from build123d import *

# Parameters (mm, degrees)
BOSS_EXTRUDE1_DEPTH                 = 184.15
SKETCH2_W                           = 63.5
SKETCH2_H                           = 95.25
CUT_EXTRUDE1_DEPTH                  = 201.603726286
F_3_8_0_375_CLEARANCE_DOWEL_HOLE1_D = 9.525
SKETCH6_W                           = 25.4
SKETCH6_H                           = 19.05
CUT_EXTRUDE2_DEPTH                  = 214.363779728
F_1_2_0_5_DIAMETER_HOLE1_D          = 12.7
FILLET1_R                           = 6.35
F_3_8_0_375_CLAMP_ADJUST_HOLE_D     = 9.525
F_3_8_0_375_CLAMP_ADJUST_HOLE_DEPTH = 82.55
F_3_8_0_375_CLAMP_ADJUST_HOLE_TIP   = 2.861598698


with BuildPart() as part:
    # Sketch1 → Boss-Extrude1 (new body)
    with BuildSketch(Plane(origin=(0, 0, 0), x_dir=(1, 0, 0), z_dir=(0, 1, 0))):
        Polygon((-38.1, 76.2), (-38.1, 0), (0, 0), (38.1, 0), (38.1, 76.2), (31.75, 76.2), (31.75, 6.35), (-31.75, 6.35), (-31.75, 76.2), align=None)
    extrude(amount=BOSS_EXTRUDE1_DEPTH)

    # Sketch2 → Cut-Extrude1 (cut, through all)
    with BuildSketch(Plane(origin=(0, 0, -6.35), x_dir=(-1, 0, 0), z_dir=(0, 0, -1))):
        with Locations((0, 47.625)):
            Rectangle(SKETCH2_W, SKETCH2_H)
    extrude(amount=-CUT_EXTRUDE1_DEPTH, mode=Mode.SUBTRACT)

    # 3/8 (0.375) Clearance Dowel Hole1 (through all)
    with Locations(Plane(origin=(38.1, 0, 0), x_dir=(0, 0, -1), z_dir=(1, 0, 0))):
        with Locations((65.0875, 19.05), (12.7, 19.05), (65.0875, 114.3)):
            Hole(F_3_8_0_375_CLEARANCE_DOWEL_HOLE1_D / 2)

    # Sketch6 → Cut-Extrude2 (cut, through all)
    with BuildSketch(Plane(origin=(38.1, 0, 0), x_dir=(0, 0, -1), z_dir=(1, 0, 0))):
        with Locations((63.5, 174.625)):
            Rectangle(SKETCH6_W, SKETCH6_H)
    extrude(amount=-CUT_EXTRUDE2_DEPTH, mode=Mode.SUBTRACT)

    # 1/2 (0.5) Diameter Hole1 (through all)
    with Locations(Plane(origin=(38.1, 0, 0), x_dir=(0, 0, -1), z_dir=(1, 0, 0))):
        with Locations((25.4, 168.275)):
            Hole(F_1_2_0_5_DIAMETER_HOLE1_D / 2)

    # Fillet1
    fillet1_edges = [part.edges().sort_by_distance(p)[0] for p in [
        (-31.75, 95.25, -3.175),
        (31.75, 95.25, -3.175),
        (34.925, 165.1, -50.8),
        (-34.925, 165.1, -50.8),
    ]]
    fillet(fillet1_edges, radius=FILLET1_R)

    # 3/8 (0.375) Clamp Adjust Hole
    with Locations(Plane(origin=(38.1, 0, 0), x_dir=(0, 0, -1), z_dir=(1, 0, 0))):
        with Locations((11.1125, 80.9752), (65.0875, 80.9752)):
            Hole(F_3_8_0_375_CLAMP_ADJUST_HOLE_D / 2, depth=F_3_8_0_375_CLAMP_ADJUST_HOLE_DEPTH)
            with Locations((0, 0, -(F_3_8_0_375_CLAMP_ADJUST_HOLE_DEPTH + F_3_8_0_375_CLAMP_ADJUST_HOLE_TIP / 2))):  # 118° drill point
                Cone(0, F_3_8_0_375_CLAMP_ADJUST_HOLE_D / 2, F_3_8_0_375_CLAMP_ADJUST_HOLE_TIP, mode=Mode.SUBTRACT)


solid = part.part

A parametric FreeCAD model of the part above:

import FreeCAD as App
import Part
import Sketcher

V = App.Vector
Q = App.Units.Quantity


def edges_at(feature, points):
    """Names of the edges that pass closest to the given points."""
    edges = feature.Shape.Edges
    near = lambda p: min(range(len(edges)), key=lambda i: edges[i].distToShape(Part.Vertex(*p))[0])
    return sorted({f"Edge{near(p) + 1}" for p in points})


def add_polygon(sketch, points):
    """Adds a closed chain of lines whose ends are joined by coincident constraints."""
    first, n = sketch.GeometryCount, len(points)
    for a, b in zip(points, points[1:] + points[:1]):
        sketch.addGeometry(Part.LineSegment(App.Vector(*a, 0), App.Vector(*b, 0)), False)
    for i in range(n):
        sketch.addConstraint(Sketcher.Constraint("Coincident", first + i, 2, first + (i + 1) % n, 1))

doc = App.newDocument("Part")
params = doc.addObject("Spreadsheet::Sheet", "Params")
for row, (alias, value) in enumerate([
    ("sketch1_width", "3 in"),
    ("sketch1_width2", "2.5 in"),
    ("sketch1_height", "2.75 in"),
    ("pad1_length", "7.25 in"),
    ("sketch2_width", "2.5 in"),
    ("sketch2_height", "3.75 in"),
    ("sketch3_diameter", "0.375 in"),
    ("hole_diameter", "0.375 in"),
    ("sketch4_height", "1 in"),
    ("sketch4_width", "0.75 in"),
    ("sketch5_diameter", "0.5 in"),
    ("hole2_diameter", "0.5 in"),
    ("fillet_radius", "0.25 in"),
    ("sketch6_diameter", "0.375 in"),
    ("hole3_diameter", "0.375 in"),
    ("hole3_depth", "3.25 in"),
], start=1):
    params.set(f"A{row}", alias)
    params.set(f"B{row}", "=" + value)
    params.setAlias(f"B{row}", alias)

body = doc.addObject("PartDesign::Body", "Body")

# Sketch on XZ plane
sketch1 = body.newObject("Sketcher::SketchObject", "Sketch")
sketch1.AttachmentSupport = (doc.getObject("XZ_Plane"), [""])
sketch1.MapMode = "FlatFace"
add_polygon(sketch1, [(-38, -76), (-38, 0), (38, 0), (38, -76), (32, -76), (32, -6), (-32, -6), (-32, -76)])  # lines 0-7
sketch1.addConstraint(Sketcher.Constraint("Vertical", 0))
sketch1.addConstraint(Sketcher.Constraint("Horizontal", 1))
sketch1.addConstraint(Sketcher.Constraint("Vertical", 2))
sketch1.addConstraint(Sketcher.Constraint("Horizontal", 3))
sketch1.addConstraint(Sketcher.Constraint("Vertical", 4))
sketch1.addConstraint(Sketcher.Constraint("Horizontal", 5))
sketch1.addConstraint(Sketcher.Constraint("Vertical", 6))
sketch1.addConstraint(Sketcher.Constraint("Horizontal", 7))
sketch1.addConstraint(Sketcher.Constraint("Symmetric", 0, 2, 1, 2, -1, 1))
sketch1.addConstraint(Sketcher.Constraint("Symmetric", 3, 2, 6, 2, -2))
sketch1.addConstraint(Sketcher.Constraint("Equal", 1, 0))
sketch1.addConstraint(Sketcher.Constraint("DistanceX", 1, 1, 1, 2, Q("3 in")))
sketch1.addConstraint(Sketcher.Constraint("DistanceX", 5, 2, 5, 1, Q("2.5 in")))
sketch1.addConstraint(Sketcher.Constraint("DistanceY", 4, 1, 4, 2, Q("2.75 in")))
sketch1.setExpression("Constraints[19]", "Params.sketch1_width")
sketch1.setExpression("Constraints[20]", "Params.sketch1_width2")
sketch1.setExpression("Constraints[21]", "Params.sketch1_height")
pad1 = body.newObject("PartDesign::Pad", "Pad")
pad1.Profile = sketch1
pad1.setExpression("Length", "Params.pad1_length")
pad1.Reversed = True

# Sketch on XY plane
sketch2 = body.newObject("Sketcher::SketchObject", "Sketch001")
sketch2.AttachmentSupport = (doc.getObject("XY_Plane"), [""])
sketch2.MapMode = "FlatFace"
sketch2.AttachmentOffset = App.Placement(V(0, 0, -0.25 * 25.4), App.Rotation())
add_polygon(sketch2, [(32, 95), (32, 0), (-32, 0), (-32, 95)])  # lines 0-3
sketch2.addConstraint(Sketcher.Constraint("Vertical", 0))
sketch2.addConstraint(Sketcher.Constraint("Horizontal", 1))
sketch2.addConstraint(Sketcher.Constraint("Vertical", 2))
sketch2.addConstraint(Sketcher.Constraint("Horizontal", 3))
sketch2.addConstraint(Sketcher.Constraint("Symmetric", 0, 2, 1, 2, -1, 1))
sketch2.addConstraint(Sketcher.Constraint("DistanceX", 1, 2, 1, 1, Q("2.5 in")))
sketch2.addConstraint(Sketcher.Constraint("DistanceY", 0, 2, 0, 1, Q("3.75 in")))
sketch2.setExpression("Constraints[9]", "Params.sketch2_width")
sketch2.setExpression("Constraints[10]", "Params.sketch2_height")
pocket1 = body.newObject("PartDesign::Pocket", "Pocket")
pocket1.Profile = sketch2
pocket1.Type = "ThroughAll"
pocket1.Reversed = True

# Sketch on YZ plane
sketch3 = body.newObject("Sketcher::SketchObject", "Sketch002")
sketch3.AttachmentSupport = (doc.getObject("YZ_Plane"), [""])
sketch3.MapMode = "FlatFace"
sketch3.AttachmentOffset = App.Placement(V(0, 0, 1.5 * 25.4), App.Rotation())
sketch3.addGeometry(Part.Circle(V(19.1, -65.1, 0), V(0, 0, 1), 4.8), False)
sketch3.addGeometry(Part.Circle(V(19.1, -12.7, 0), V(0, 0, 1), 4.8), False)
sketch3.addGeometry(Part.Circle(V(114.3, -65.1, 0), V(0, 0, 1), 4.8), False)
sketch3.addConstraint(Sketcher.Constraint("Equal", 0, 1))
sketch3.addConstraint(Sketcher.Constraint("Equal", 1, 2))
sketch3.addConstraint(Sketcher.Constraint("Horizontal", 0, 3, 2, 3))
sketch3.addConstraint(Sketcher.Constraint("Vertical", 0, 3, 1, 3))
sketch3.addConstraint(Sketcher.Constraint("Diameter", 0, Q("0.375 in")))
sketch3.addConstraint(Sketcher.Constraint("DistanceY", 1, 3, -1, 1, Q("0.5 in")))
sketch3.addConstraint(Sketcher.Constraint("DistanceX", -1, 1, 2, 3, Q("4.5 in")))
sketch3.addConstraint(Sketcher.Constraint("DistanceX", -1, 1, 0, 3, Q("0.75 in")))
sketch3.addConstraint(Sketcher.Constraint("DistanceY", 0, 3, -1, 1, Q("2.5625 in")))
sketch3.setExpression("Constraints[4]", "Params.sketch3_diameter")
doc.recompute()
hole = body.newObject("PartDesign::Hole", "Hole")
hole.Profile = sketch3
hole.ThreadType = "None"
hole.setExpression("Diameter", "Params.hole_diameter")
hole.DepthType = "ThroughAll"

# Sketch on YZ plane
sketch4 = body.newObject("Sketcher::SketchObject", "Sketch003")
sketch4.AttachmentSupport = (doc.getObject("YZ_Plane"), [""])
sketch4.MapMode = "FlatFace"
sketch4.AttachmentOffset = App.Placement(V(0, 0, 1.5 * 25.4), App.Rotation())
add_polygon(sketch4, [(184, -51), (165, -51), (165, -76), (184, -76)])  # lines 0-3
sketch4.addConstraint(Sketcher.Constraint("Horizontal", 0))
sketch4.addConstraint(Sketcher.Constraint("Vertical", 1))
sketch4.addConstraint(Sketcher.Constraint("Horizontal", 2))
sketch4.addConstraint(Sketcher.Constraint("Vertical", 3))
sketch4.addConstraint(Sketcher.Constraint("DistanceY", 1, 2, 1, 1, Q("1 in")))
sketch4.addConstraint(Sketcher.Constraint("DistanceY", 0, 2, -1, 1, Q("2 in")))
sketch4.addConstraint(Sketcher.Constraint("DistanceX", 0, 2, 0, 1, Q("0.75 in")))
sketch4.addConstraint(Sketcher.Constraint("DistanceX", -1, 1, 0, 2, Q("6.5 in")))
sketch4.setExpression("Constraints[8]", "Params.sketch4_height")
sketch4.setExpression("Constraints[10]", "Params.sketch4_width")
pocket2 = body.newObject("PartDesign::Pocket", "Pocket001")
pocket2.Profile = sketch4
pocket2.Type = "ThroughAll"

# Sketch on YZ plane
sketch5 = body.newObject("Sketcher::SketchObject", "Sketch004")
sketch5.AttachmentSupport = (doc.getObject("YZ_Plane"), [""])
sketch5.MapMode = "FlatFace"
sketch5.AttachmentOffset = App.Placement(V(0, 0, 1.5 * 25.4), App.Rotation())
sketch5.addGeometry(Part.Circle(V(168, -25, 0), V(0, 0, 1), 6), False)
sketch5.addConstraint(Sketcher.Constraint("Diameter", 0, Q("0.5 in")))
sketch5.addConstraint(Sketcher.Constraint("DistanceY", 0, 3, -1, 1, Q("1 in")))
sketch5.addConstraint(Sketcher.Constraint("DistanceX", -1, 1, 0, 3, Q("6.625 in")))
sketch5.setExpression("Constraints[0]", "Params.sketch5_diameter")
doc.recompute()
hole2 = body.newObject("PartDesign::Hole", "Hole001")
hole2.Profile = sketch5
hole2.ThreadType = "None"
hole2.setExpression("Diameter", "Params.hole2_diameter")
hole2.DepthType = "ThroughAll"
doc.recompute()

fillet = body.newObject("PartDesign::Fillet", "Fillet")
fillet.Base = (hole2, edges_at(hole2, [
    (-31.75, 95.25, -3.175),
    (31.75, 95.25, -3.175),
    (34.925, 165.1, -50.8),
    (-34.925, 165.1, -50.8),
]))
fillet.setExpression("Radius", "Params.fillet_radius")

# Sketch on YZ plane
sketch6 = body.newObject("Sketcher::SketchObject", "Sketch005")
sketch6.AttachmentSupport = (doc.getObject("YZ_Plane"), [""])
sketch6.MapMode = "FlatFace"
sketch6.AttachmentOffset = App.Placement(V(0, 0, 1.5 * 25.4), App.Rotation())
sketch6.addGeometry(Part.Circle(V(81, -11.1, 0), V(0, 0, 1), 4.8), False)
sketch6.addGeometry(Part.Circle(V(81, -65.1, 0), V(0, 0, 1), 4.8), False)
sketch6.addConstraint(Sketcher.Constraint("Equal", 0, 1))
sketch6.addConstraint(Sketcher.Constraint("Vertical", 0, 3, 1, 3))
sketch6.addConstraint(Sketcher.Constraint("Diameter", 0, Q("0.375 in")))
sketch6.addConstraint(Sketcher.Constraint("DistanceX", -1, 1, 0, 3, Q("3.188 in")))
sketch6.addConstraint(Sketcher.Constraint("DistanceY", 0, 3, -1, 1, Q("0.4375 in")))
sketch6.addConstraint(Sketcher.Constraint("DistanceY", 1, 3, -1, 1, Q("2.5625 in")))
sketch6.setExpression("Constraints[2]", "Params.sketch6_diameter")
doc.recompute()
hole3 = body.newObject("PartDesign::Hole", "Hole002")
hole3.Profile = sketch6
hole3.ThreadType = "None"
hole3.setExpression("Diameter", "Params.hole3_diameter")
hole3.DepthType = "Dimension"
hole3.setExpression("Depth", "Params.hole3_depth")
hole3.DrillPoint = "Angled"
hole3.DrillPointAngle = 118

doc.recompute()
